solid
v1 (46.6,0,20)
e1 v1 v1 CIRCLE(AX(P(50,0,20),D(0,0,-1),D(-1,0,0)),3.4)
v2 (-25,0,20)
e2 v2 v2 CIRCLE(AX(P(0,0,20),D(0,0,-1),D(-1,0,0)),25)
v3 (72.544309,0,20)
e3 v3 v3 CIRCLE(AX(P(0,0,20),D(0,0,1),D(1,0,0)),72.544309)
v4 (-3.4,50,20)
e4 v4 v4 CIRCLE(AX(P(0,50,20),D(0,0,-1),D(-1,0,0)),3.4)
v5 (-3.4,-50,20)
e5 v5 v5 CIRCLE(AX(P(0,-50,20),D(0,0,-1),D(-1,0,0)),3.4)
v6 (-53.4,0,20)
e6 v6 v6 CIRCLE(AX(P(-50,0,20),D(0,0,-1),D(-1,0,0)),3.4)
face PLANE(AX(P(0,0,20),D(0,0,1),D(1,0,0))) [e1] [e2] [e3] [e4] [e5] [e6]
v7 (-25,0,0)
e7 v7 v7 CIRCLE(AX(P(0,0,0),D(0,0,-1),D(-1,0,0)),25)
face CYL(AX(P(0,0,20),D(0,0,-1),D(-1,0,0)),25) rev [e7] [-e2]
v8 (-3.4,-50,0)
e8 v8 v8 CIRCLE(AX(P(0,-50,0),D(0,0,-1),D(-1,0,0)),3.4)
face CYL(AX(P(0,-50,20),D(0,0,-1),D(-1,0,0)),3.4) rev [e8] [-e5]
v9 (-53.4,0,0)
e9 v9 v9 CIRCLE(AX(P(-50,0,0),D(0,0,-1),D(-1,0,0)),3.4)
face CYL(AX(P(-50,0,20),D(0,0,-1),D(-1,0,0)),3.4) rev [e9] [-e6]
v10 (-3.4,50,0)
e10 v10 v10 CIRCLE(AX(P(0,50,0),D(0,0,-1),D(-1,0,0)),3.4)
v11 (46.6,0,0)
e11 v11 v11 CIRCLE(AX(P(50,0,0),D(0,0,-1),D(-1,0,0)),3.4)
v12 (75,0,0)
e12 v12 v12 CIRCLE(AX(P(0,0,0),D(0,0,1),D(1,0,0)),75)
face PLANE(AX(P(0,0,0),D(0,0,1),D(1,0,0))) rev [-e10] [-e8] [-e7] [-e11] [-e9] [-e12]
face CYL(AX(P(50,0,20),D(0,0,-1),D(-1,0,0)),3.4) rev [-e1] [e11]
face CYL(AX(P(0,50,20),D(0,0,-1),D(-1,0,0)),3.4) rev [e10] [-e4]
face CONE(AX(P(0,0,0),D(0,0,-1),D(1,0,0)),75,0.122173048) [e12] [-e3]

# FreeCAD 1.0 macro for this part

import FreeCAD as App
import Part
import Sketcher
from FreeCAD import Vector
Q = App.Units.Quantity

doc = App.newDocument("Part")
body = doc.addObject("PartDesign::Body", "Body")

# Sketch on XY plane
sketch1 = body.newObject("Sketcher::SketchObject", "Sketch")
sketch1.AttachmentSupport = (doc.getObject("XY_Plane"), [""])
sketch1.MapMode = "FlatFace"
sketch1.addGeometry(Part.Circle(Vector(0, 0, 0), Vector(0, 0, 1), 75), False)
sketch1.addConstraint([
    Sketcher.Constraint("Coincident", 0, 3, -1, 1),
    Sketcher.Constraint("Diameter", 0, Q("150 mm")),
])
pad1 = body.newObject("PartDesign::Pad", "Pad")
pad1.Profile = sketch1
pad1.Length = 20
pad1.TaperAngle = -7

# Sketch on XY plane
sketch2 = body.newObject("Sketcher::SketchObject", "Sketch001")
sketch2.AttachmentSupport = (doc.getObject("XY_Plane"), [""])
sketch2.MapMode = "FlatFace"
sketch2.addGeometry([
    Part.Circle(Vector(0, 0, 0), Vector(0, 0, 1), 25),  # 0
    Part.Circle(Vector(0, 50, 0), Vector(0, 0, 1), 3.4),  # 1
    Part.Circle(Vector(-50, 0, 0), Vector(0, 0, 1), 3.4),  # 2
    Part.Circle(Vector(0, -50, 0), Vector(0, 0, 1), 3.4),  # 3
    Part.Circle(Vector(50, 0, 0), Vector(0, 0, 1), 3.4),  # 4
], False)
sketch2.addConstraint([
    Sketcher.Constraint("Coincident", 0, 3, -1, 1),
    Sketcher.Constraint("Equal", 1, 2),
    Sketcher.Constraint("Equal", 2, 3),
    Sketcher.Constraint("Equal", 3, 4),
    Sketcher.Constraint("Symmetric", 1, 3, 3, 3, -1, 1),
    Sketcher.Constraint("Symmetric", 2, 3, 4, 3, -1, 1),
    Sketcher.Constraint("PointOnObject", 1, 3, -2),
    Sketcher.Constraint("PointOnObject", 2, 3, -1),
    Sketcher.Constraint("Diameter", 0, Q("50 mm")),
    Sketcher.Constraint("Diameter", 1, Q("6.8 mm")),
    Sketcher.Constraint("DistanceY", -1, 1, 1, 3, Q("50 mm")),
    Sketcher.Constraint("DistanceX", 2, 3, -1, 1, Q("50 mm")),
])
pocket1 = body.newObject("PartDesign::Pocket", "Pocket")
pocket1.Profile = sketch2
pocket1.Type = "ThroughAll"
pocket1.Reversed = True

doc.recompute()
